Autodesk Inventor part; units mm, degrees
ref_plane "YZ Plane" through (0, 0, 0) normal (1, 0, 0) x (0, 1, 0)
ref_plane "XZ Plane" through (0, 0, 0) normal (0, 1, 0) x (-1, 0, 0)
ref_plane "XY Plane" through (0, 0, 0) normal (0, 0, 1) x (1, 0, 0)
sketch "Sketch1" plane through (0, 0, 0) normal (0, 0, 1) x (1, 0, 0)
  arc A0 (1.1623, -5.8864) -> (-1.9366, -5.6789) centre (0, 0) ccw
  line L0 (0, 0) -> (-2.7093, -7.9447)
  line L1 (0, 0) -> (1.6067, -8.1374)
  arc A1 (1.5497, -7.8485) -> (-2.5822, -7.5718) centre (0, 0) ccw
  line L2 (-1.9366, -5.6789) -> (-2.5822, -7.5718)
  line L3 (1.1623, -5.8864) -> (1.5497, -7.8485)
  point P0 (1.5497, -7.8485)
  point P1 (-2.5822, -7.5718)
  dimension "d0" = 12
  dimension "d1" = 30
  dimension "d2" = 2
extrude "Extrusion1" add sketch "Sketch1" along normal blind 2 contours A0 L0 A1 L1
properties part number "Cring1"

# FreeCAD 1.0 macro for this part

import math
import FreeCAD as App
import Part
import Sketcher
from FreeCAD import Vector
Q = App.Units.Quantity

doc = App.newDocument("Part")
body = doc.addObject("PartDesign::Body", "Body")

# Sketch on XY plane
sketch1 = doc.addObject("Sketcher::SketchObject", "Sketch")
body.addObject(sketch1)
sketch1.AttachmentSupport = (doc.XY_Plane, [""])
sketch1.MapMode = "FlatFace"
sketch1.addGeometry(Part.ArcOfCircle(Part.Circle(Vector(0, 0, 0), Vector(0, 0, 1), 6), math.radians(-79), math.radians(251)), False)
sketch1.addGeometry(Part.LineSegment(Vector(1.2, -5.9, 0), Vector(1.5, -7.8, 0)), False)
sketch1.addGeometry(Part.ArcOfCircle(Part.Circle(Vector(0, 0, 0), Vector(0, 0, 1), 8), math.radians(-79), math.radians(251)), False)
sketch1.addGeometry(Part.LineSegment(Vector(-2.6, -7.6, 0), Vector(-1.9, -5.7, 0)), False)
sketch1.addConstraint(Sketcher.Constraint("Coincident", 0, 1, 1, 1))
sketch1.addConstraint(Sketcher.Constraint("Coincident", 1, 2, 2, 1))
sketch1.addConstraint(Sketcher.Constraint("Coincident", 2, 2, 3, 1))
sketch1.addConstraint(Sketcher.Constraint("Coincident", 3, 2, 0, 2))
sketch1.addConstraint(Sketcher.Constraint("Coincident", 0, 3, -1, 1))
sketch1.addConstraint(Sketcher.Constraint("Coincident", 2, 3, -1, 1))
sketch1.addConstraint(Sketcher.Constraint("Radius", 0, 6.0))
sketch1.addConstraint(Sketcher.Constraint("Distance", 1, 2.0))
sketch1.addConstraint(Sketcher.Constraint("Angle", 1, Q("-78.8308 deg")))
sketch1.addConstraint(Sketcher.Constraint("Angle", 3, Q("71.1696 deg")))
sketch1.addConstraint(Sketcher.Constraint("DistanceY", 3, 2, -1, 1, 5.679))
sketch1.addConstraint(Sketcher.Constraint("DistanceX", 3, 2, 0, 1, 3.099))
pad1 = doc.addObject("PartDesign::Pad", "Pad")
body.addObject(pad1)
pad1.Profile = sketch1
pad1.Length = 2

doc.recompute()
